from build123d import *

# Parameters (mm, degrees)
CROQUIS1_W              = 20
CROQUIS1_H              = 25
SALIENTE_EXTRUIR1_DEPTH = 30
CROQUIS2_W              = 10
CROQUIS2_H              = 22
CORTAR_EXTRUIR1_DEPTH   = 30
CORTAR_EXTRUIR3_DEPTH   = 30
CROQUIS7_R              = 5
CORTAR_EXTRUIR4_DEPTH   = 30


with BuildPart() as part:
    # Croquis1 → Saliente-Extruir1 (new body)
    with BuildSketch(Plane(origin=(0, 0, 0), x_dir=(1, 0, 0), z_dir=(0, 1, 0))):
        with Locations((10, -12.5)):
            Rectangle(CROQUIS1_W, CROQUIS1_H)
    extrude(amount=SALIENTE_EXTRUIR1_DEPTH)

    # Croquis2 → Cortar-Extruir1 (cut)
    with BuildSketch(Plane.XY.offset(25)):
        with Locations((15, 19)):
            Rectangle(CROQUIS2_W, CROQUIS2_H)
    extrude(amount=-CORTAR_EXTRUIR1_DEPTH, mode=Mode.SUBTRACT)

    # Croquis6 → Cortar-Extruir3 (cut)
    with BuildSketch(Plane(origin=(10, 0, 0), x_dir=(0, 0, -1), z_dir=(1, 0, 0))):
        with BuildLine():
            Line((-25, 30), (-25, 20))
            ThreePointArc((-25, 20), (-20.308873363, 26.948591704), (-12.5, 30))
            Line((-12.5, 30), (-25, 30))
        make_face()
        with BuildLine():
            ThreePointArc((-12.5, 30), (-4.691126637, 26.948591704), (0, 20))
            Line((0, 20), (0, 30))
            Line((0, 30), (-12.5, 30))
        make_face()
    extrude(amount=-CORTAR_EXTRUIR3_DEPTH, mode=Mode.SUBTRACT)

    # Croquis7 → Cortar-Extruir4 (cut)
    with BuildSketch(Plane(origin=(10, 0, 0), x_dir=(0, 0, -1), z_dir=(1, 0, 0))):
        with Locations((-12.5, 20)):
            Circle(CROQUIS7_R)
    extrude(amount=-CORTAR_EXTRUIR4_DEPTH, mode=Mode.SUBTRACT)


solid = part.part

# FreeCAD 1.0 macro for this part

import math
import FreeCAD as App
import Part
import Sketcher
Q = App.Units.Quantity

doc = App.newDocument("Part")
body = doc.addObject("PartDesign::Body", "Body")

sketch1 = body.newObject("Sketcher::SketchObject", "Sketch")
sketch1.AttachmentSupport = (doc.getObject("XZ_Plane"), [""])
sketch1.MapMode = "FlatFace"
sketch1.addGeometry([
    Part.LineSegment(App.Vector(0, 0, 0), App.Vector(0, 25, 0)),
    Part.LineSegment(App.Vector(0, 25, 0), App.Vector(20, 25, 0)),
    Part.LineSegment(App.Vector(20, 25, 0), App.Vector(20, 0, 0)),
    Part.LineSegment(App.Vector(20, 0, 0), App.Vector(0, 0, 0)),
], False)
sketch1.addConstraint([
    Sketcher.Constraint("Coincident", 0, 2, 1, 1),
    Sketcher.Constraint("Coincident", 1, 2, 2, 1),
    Sketcher.Constraint("Coincident", 2, 2, 3, 1),
    Sketcher.Constraint("Coincident", 3, 2, 0, 1),
    Sketcher.Constraint("Vertical", 0),
    Sketcher.Constraint("Horizontal", 1),
    Sketcher.Constraint("Vertical", 2),
    Sketcher.Constraint("Horizontal", 3),
    Sketcher.Constraint("Coincident", 3, 2, -1, 1),
    Sketcher.Constraint("DistanceX", 1, 1, 1, 2, Q("20 mm")),
    Sketcher.Constraint("DistanceY", 0, 1, 0, 2, Q("25 mm")),
])
pad1 = body.newObject("PartDesign::Pad", "Pad")
pad1.Profile = sketch1
pad1.Length = 30
pad1.Reversed = True

sketch2 = body.newObject("Sketcher::SketchObject", "Sketch001")
sketch2.AttachmentSupport = (doc.getObject("XY_Plane"), [""])
sketch2.MapMode = "FlatFace"
sketch2.AttachmentOffset = App.Placement(App.Vector(0, 0, 25), App.Rotation())
sketch2.addGeometry([
    Part.LineSegment(App.Vector(10, 30, 0), App.Vector(10, 8, 0)),
    Part.LineSegment(App.Vector(10, 8, 0), App.Vector(20, 8, 0)),
    Part.LineSegment(App.Vector(20, 8, 0), App.Vector(20, 30, 0)),
    Part.LineSegment(App.Vector(20, 30, 0), App.Vector(10, 30, 0)),
], False)
sketch2.addConstraint([
    Sketcher.Constraint("Coincident", 0, 2, 1, 1),
    Sketcher.Constraint("Coincident", 1, 2, 2, 1),
    Sketcher.Constraint("Coincident", 2, 2, 3, 1),
    Sketcher.Constraint("Coincident", 3, 2, 0, 1),
    Sketcher.Constraint("Vertical", 0),
    Sketcher.Constraint("Horizontal", 1),
    Sketcher.Constraint("Vertical", 2),
    Sketcher.Constraint("Horizontal", 3),
    Sketcher.Constraint("DistanceX", 1, 1, 1, 2, Q("10 mm")),
    Sketcher.Constraint("DistanceY", 0, 2, 0, 1, Q("22 mm")),
    Sketcher.Constraint("DistanceX", -1, 1, 0, 2, Q("10 mm")),
    Sketcher.Constraint("DistanceY", -1, 1, 0, 2, Q("8 mm")),
])
pocket1 = body.newObject("PartDesign::Pocket", "Pocket")
pocket1.Profile = sketch2
pocket1.Length = 30

sketch3 = body.newObject("Sketcher::SketchObject", "Sketch002")
sketch3.AttachmentSupport = (doc.getObject("YZ_Plane"), [""])
sketch3.MapMode = "FlatFace"
sketch3.AttachmentOffset = App.Placement(App.Vector(0, 0, 10), App.Rotation())
sketch3.addGeometry([
    Part.LineSegment(App.Vector(30, 25, 0), App.Vector(20, 25, 0)),
    Part.ArcOfCircle(Part.Circle(App.Vector(16, 12, 0), App.Vector(0, 0, 1), 14), math.radians(4), math.radians(73)),
    Part.LineSegment(App.Vector(30, 12, 0), App.Vector(30, 25, 0)),
    Part.ArcOfCircle(Part.Circle(App.Vector(16, 13, 0), App.Vector(0, 0, 1), 14), math.radians(-73), math.radians(-4)),
    Part.LineSegment(App.Vector(20, 0, 0), App.Vector(30, 0, 0)),
    Part.LineSegment(App.Vector(30, 0, 0), App.Vector(30, 12, 0)),
], False)
sketch3.addConstraint([
    Sketcher.Constraint("Coincident", 0, 2, 1, 2),
    Sketcher.Constraint("Coincident", 1, 1, 2, 1),
    Sketcher.Constraint("Coincident", 2, 2, 0, 1),
    Sketcher.Constraint("Coincident", 3, 1, 4, 1),
    Sketcher.Constraint("Coincident", 4, 2, 5, 1),
    Sketcher.Constraint("Coincident", 5, 2, 3, 2),
    Sketcher.Constraint("Horizontal", 0),
    Sketcher.Constraint("Vertical", 2),
    Sketcher.Constraint("Horizontal", 4),
    Sketcher.Constraint("Vertical", 5),
    Sketcher.Constraint("Coincident", 5, 2, 1, 1),
    Sketcher.Constraint("Equal", 1, 3),
    Sketcher.Constraint("PointOnObject", 3, 1, -1),
    Sketcher.Constraint("Vertical", 1, 3, 3, 3),
    Sketcher.Constraint("Vertical", 0, 2, 3, 1),
    Sketcher.Constraint("DistanceX", 0, 2, 0, 1, Q("10 mm")),
    Sketcher.Constraint("DistanceY", 2, 1, 2, 2, Q("12.5 mm")),
    Sketcher.Constraint("DistanceX", -1, 1, 0, 2, Q("20 mm")),
    Sketcher.Constraint("Radius", 1, Q("14.083749 mm")),
])
pocket2 = body.newObject("PartDesign::Pocket", "Pocket001")
pocket2.Profile = sketch3
pocket2.Length = 30

sketch4 = body.newObject("Sketcher::SketchObject", "Sketch003")
sketch4.AttachmentSupport = (doc.getObject("YZ_Plane"), [""])
sketch4.MapMode = "FlatFace"
sketch4.AttachmentOffset = App.Placement(App.Vector(0, 0, 10), App.Rotation())
sketch4.addGeometry(Part.Circle(App.Vector(20, 12, 0), App.Vector(0, 0, 1), 5), False)
sketch4.addConstraint([
    Sketcher.Constraint("Diameter", 0, Q("10 mm")),
    Sketcher.Constraint("DistanceX", -1, 1, 0, 3, Q("20 mm")),
    Sketcher.Constraint("DistanceY", -1, 1, 0, 3, Q("12.5 mm")),
])
pocket3 = body.newObject("PartDesign::Pocket", "Pocket002")
pocket3.Profile = sketch4
pocket3.Length = 30

doc.recompute()
